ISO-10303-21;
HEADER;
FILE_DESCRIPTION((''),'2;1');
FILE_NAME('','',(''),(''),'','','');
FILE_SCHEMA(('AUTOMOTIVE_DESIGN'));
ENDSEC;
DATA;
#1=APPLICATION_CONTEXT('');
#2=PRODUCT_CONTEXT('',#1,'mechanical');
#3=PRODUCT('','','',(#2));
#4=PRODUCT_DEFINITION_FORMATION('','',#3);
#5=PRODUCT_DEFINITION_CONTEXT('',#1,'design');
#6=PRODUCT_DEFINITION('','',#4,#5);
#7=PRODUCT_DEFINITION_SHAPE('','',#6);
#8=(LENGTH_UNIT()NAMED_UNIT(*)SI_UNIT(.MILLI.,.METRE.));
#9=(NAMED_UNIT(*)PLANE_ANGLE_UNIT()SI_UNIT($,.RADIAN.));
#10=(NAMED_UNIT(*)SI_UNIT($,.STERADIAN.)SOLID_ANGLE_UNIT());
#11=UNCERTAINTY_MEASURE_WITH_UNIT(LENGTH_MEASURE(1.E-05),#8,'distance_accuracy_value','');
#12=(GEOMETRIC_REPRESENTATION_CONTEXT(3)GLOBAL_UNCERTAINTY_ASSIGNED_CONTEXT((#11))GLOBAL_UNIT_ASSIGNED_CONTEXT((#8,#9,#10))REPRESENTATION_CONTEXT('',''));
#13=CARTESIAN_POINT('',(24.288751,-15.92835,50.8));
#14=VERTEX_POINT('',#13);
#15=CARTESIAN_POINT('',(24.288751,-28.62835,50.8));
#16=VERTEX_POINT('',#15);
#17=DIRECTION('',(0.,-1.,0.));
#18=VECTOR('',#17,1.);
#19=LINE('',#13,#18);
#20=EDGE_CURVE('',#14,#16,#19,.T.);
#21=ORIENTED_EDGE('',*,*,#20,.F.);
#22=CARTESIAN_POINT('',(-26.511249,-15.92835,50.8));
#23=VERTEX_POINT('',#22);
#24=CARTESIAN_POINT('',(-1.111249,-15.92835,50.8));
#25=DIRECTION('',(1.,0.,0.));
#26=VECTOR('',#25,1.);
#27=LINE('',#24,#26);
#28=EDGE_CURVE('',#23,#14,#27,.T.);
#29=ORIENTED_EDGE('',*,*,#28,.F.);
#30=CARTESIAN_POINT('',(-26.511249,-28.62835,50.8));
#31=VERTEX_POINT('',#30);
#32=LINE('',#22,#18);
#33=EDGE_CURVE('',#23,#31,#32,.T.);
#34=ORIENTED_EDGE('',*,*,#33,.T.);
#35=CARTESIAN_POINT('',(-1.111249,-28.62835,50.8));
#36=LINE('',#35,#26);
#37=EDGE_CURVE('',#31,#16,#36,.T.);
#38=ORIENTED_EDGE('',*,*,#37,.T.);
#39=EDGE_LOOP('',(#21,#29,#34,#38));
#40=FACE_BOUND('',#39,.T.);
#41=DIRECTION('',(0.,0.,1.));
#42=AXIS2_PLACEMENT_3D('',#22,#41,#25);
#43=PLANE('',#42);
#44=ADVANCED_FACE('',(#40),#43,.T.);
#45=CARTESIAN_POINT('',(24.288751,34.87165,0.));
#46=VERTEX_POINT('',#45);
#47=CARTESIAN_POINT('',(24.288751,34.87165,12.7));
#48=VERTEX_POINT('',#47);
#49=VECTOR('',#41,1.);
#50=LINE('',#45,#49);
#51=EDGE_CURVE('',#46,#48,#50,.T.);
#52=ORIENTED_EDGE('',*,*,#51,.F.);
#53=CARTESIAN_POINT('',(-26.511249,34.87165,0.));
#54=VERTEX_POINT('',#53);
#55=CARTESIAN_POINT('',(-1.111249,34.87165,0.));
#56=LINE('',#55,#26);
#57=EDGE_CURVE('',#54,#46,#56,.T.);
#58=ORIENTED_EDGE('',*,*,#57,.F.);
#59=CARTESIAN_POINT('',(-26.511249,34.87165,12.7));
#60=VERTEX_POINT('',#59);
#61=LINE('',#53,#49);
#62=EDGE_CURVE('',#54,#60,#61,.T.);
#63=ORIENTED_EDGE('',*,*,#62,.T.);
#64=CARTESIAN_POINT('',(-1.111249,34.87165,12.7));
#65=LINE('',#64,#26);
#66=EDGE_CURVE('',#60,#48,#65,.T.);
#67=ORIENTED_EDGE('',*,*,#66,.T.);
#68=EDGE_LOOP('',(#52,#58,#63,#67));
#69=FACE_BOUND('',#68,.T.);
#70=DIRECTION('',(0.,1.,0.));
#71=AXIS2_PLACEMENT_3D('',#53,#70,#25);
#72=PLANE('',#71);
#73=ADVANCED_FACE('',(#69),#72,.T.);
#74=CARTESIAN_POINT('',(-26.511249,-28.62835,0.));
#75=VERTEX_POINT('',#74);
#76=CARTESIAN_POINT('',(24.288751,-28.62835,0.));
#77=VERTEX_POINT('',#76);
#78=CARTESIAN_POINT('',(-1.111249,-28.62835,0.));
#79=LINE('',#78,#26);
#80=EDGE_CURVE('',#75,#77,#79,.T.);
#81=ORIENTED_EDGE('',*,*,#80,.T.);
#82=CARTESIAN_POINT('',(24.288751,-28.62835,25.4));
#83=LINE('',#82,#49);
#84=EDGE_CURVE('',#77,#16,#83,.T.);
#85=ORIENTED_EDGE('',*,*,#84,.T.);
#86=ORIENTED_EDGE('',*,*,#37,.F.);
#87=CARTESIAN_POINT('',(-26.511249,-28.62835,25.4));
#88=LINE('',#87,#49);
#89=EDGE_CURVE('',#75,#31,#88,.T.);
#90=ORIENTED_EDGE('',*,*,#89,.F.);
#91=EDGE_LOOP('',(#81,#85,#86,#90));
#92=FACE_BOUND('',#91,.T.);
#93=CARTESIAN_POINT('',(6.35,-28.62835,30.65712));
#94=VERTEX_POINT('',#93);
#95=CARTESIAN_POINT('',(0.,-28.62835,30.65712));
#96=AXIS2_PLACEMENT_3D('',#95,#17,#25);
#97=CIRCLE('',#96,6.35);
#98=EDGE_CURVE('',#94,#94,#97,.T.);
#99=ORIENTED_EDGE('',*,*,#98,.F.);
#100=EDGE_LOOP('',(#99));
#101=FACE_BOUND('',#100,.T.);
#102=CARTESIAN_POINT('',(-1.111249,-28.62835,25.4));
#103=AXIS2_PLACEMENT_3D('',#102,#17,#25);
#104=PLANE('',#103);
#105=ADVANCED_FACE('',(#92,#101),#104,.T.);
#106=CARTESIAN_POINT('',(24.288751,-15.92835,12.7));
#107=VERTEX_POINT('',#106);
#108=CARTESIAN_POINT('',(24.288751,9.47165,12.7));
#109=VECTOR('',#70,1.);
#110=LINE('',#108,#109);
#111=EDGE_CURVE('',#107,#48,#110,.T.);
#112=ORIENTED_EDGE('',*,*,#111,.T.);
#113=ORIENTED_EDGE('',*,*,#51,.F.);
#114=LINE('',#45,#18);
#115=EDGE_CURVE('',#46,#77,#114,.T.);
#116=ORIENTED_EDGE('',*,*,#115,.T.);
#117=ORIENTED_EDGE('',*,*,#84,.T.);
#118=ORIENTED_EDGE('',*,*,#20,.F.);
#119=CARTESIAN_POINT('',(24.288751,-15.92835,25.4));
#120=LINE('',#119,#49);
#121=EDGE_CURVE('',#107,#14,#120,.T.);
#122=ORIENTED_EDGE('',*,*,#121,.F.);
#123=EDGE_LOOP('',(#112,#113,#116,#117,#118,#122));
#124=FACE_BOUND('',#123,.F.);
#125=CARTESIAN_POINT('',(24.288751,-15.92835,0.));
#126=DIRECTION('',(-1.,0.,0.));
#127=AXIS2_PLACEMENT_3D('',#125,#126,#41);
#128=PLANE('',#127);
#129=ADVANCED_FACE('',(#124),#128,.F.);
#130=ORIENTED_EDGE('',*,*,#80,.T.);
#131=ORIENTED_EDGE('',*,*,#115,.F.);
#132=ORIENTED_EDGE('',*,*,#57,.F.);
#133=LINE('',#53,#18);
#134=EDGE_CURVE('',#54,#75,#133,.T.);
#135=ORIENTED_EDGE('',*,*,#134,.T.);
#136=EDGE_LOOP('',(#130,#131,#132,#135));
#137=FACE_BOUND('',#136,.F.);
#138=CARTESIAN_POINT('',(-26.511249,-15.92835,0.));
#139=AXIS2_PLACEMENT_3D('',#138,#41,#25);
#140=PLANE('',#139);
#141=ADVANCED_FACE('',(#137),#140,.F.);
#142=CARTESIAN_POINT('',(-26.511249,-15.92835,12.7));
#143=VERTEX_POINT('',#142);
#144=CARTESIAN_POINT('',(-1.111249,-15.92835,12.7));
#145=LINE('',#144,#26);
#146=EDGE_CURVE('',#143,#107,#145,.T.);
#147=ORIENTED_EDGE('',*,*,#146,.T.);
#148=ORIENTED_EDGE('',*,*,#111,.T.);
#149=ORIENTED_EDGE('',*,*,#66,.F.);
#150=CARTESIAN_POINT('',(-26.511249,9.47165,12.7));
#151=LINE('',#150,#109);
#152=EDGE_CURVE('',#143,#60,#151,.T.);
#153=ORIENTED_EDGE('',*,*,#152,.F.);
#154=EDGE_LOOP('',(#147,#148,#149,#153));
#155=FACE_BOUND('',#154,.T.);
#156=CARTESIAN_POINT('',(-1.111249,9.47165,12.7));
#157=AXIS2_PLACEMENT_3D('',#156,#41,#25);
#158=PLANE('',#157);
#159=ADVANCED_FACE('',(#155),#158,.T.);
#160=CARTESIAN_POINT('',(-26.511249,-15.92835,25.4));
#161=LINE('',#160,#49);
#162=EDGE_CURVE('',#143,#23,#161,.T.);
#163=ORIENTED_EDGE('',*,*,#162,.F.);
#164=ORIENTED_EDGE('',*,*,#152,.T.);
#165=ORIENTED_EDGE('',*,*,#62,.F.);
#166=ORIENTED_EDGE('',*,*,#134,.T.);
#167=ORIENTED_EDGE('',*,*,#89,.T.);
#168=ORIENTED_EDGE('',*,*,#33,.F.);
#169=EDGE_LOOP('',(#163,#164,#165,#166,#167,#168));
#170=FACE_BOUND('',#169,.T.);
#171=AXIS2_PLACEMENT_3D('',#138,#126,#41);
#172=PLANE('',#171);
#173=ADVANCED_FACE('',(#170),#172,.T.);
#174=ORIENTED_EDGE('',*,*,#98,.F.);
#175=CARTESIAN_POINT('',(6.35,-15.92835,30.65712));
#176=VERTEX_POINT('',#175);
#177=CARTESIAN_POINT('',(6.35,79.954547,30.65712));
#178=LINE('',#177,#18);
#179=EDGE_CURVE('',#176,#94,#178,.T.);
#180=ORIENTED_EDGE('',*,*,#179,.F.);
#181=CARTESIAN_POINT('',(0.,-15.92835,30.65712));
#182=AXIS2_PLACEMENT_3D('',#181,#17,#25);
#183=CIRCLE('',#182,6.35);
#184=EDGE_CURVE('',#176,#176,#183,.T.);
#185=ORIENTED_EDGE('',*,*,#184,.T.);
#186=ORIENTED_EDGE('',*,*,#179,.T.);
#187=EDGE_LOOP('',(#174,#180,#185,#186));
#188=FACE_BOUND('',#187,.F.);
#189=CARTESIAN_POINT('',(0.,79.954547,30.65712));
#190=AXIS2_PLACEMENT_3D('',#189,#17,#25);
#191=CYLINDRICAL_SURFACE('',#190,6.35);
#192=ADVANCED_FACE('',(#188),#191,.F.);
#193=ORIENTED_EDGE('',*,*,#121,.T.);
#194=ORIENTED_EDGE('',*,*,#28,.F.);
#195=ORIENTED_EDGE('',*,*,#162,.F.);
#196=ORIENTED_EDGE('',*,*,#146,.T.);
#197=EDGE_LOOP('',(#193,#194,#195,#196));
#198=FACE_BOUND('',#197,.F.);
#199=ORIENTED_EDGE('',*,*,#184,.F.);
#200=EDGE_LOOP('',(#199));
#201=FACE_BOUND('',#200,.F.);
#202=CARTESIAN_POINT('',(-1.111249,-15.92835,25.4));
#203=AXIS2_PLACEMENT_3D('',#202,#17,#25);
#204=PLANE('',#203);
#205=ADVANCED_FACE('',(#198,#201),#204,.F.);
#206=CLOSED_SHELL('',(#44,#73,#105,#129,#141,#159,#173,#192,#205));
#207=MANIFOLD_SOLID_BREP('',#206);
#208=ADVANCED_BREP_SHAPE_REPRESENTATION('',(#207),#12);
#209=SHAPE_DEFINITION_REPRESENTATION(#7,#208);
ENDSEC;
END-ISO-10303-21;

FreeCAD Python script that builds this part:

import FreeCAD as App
import Part
import Sketcher
Q = App.Units.Quantity


def add_polygon(sketch, points):
    """Adds a closed chain of lines whose ends are joined by coincident constraints."""
    first, n = sketch.GeometryCount, len(points)
    for a, b in zip(points, points[1:] + points[:1]):
        sketch.addGeometry(Part.LineSegment(App.Vector(*a, 0), App.Vector(*b, 0)), False)
    for i in range(n):
        sketch.addConstraint(Sketcher.Constraint("Coincident", first + i, 2, first + (i + 1) % n, 1))

doc = App.newDocument("Part")
body = doc.addObject("PartDesign::Body", "Body")

# Sketch on XY plane
sketch1 = doc.addObject("Sketcher::SketchObject", "Sketch")
body.addObject(sketch1)
sketch1.AttachmentSupport = (doc.XY_Plane, [""])
sketch1.MapMode = "FlatFace"
add_polygon(sketch1, [(-26.511249, 34.87165), (-26.511249, -15.92835), (24.288751, -15.92835), (24.288751, 34.87165)])  # lines 0-3
sketch1.addConstraint(Sketcher.Constraint("Vertical", 0))
sketch1.addConstraint(Sketcher.Constraint("Horizontal", 1))
sketch1.addConstraint(Sketcher.Constraint("Vertical", 2))
sketch1.addConstraint(Sketcher.Constraint("Horizontal", 3))
sketch1.addConstraint(Sketcher.Constraint("Equal", 3, 0))
sketch1.addConstraint(Sketcher.Constraint("DistanceX", 1, 1, 1, 2, Q("2 in")))
sketch1.addConstraint(Sketcher.Constraint("DistanceX", 0, 2, -1, 1, 26.511249))
sketch1.addConstraint(Sketcher.Constraint("DistanceY", 0, 2, -1, 1, 15.92835))
pad1 = doc.addObject("PartDesign::Pad", "Pad")
body.addObject(pad1)
pad1.Profile = sketch1
pad1.Length = Q("0.5 in")

# Sketch on XZ plane
sketch2 = doc.addObject("Sketcher::SketchObject", "Sketch001")
body.addObject(sketch2)
sketch2.AttachmentSupport = (doc.XZ_Plane, [""])
sketch2.MapMode = "FlatFace"
sketch2.AttachmentOffset = App.Placement(App.Vector(0, 0, 15.92835), App.Rotation())
add_polygon(sketch2, [(-26.511249, 50.8), (-26.511249, 0), (24.288751, 0), (24.288751, 50.8)])  # lines 0-3
sketch2.addConstraint(Sketcher.Constraint("Vertical", 0))
sketch2.addConstraint(Sketcher.Constraint("Horizontal", 1))
sketch2.addConstraint(Sketcher.Constraint("Vertical", 2))
sketch2.addConstraint(Sketcher.Constraint("Horizontal", 3))
sketch2.addConstraint(Sketcher.Constraint("PointOnObject", 0, 2, -1))
sketch2.addConstraint(Sketcher.Constraint("Equal", 3, 0))
sketch2.addConstraint(Sketcher.Constraint("DistanceX", 1, 1, 1, 2, Q("2 in")))
sketch2.addConstraint(Sketcher.Constraint("DistanceX", 0, 2, -1, 1, 26.511249))
pad2 = doc.addObject("PartDesign::Pad", "Pad001")
body.addObject(pad2)
pad2.Profile = sketch2
pad2.Length = Q("0.5 in")

# Sketch on XZ plane
sketch3 = doc.addObject("Sketcher::SketchObject", "Sketch002")
body.addObject(sketch3)
sketch3.AttachmentSupport = (doc.XZ_Plane, [""])
sketch3.MapMode = "FlatFace"
sketch3.AttachmentOffset = App.Placement(App.Vector(0, 0, 15.92835), App.Rotation())
sketch3.addGeometry(Part.Circle(App.Vector(0, 30.65712, 0), App.Vector(0, 0, 1), 6.35), False)
sketch3.addConstraint(Sketcher.Constraint("PointOnObject", 0, 3, -2))
sketch3.addConstraint(Sketcher.Constraint("Diameter", 0, Q("0.5 in")))
sketch3.addConstraint(Sketcher.Constraint("DistanceY", -1, 1, 0, 3, 30.65712))
doc.recompute()
hole = doc.addObject("PartDesign::Hole", "Hole")
body.addObject(hole)
hole.Profile = sketch3
hole.ThreadType = "None"
hole.Diameter = Q("0.5 in")
hole.DepthType = "ThroughAll"
hole.Reversed = True

doc.recompute()
